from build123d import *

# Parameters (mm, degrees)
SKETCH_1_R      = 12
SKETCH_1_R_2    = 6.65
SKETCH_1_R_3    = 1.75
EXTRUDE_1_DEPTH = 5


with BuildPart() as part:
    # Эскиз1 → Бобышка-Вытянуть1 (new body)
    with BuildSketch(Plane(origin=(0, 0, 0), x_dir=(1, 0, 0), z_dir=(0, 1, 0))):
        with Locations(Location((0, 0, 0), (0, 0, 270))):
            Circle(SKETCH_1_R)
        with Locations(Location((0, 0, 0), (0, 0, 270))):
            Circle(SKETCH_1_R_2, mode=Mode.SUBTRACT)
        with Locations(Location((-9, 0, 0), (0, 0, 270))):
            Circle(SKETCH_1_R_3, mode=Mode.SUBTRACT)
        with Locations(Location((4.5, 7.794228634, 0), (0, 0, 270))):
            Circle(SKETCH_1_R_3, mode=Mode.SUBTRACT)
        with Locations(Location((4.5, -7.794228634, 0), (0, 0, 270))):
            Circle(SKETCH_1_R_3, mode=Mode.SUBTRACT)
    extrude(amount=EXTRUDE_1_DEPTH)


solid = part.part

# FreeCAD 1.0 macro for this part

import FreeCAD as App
import Part
import Sketcher

doc = App.newDocument("Part")
params = doc.addObject("Spreadsheet::Sheet", "Params")
for row, (alias, value) in enumerate([
    ("sketch1_diameter", "24 mm"),
    ("sketch1_diameter2", "3.5 mm"),
    ("sketch1_diameter3", "13.3 mm"),
    ("pad1_length", "5 mm"),
], start=1):
    params.set(f"A{row}", alias)
    params.set(f"B{row}", "=" + value)
    params.setAlias(f"B{row}", alias)

body = doc.addObject("PartDesign::Body", "Body")

# Sketch on XZ plane
sketch1 = body.newObject("Sketcher::SketchObject", "Sketch")
sketch1.AttachmentSupport = (doc.getObject("XZ_Plane"), [""])
sketch1.MapMode = "FlatFace"
sketch1.addGeometry(Part.Circle(App.Vector(0, 0, 0), App.Vector(0, 0, 1), 12), False)
sketch1.addGeometry(Part.Circle(App.Vector(-9, 0, 0), App.Vector(0, 0, 1), 1.8), False)
sketch1.addGeometry(Part.Circle(App.Vector(4.5, -7.8, 0), App.Vector(0, 0, 1), 1.8), False)
sketch1.addGeometry(Part.Circle(App.Vector(0, 0, 0), App.Vector(0, 0, 1), 6.7), False)
sketch1.addGeometry(Part.Circle(App.Vector(4.5, 7.8, 0), App.Vector(0, 0, 1), 1.8), False)
sketch1.addConstraint(Sketcher.Constraint("Coincident", 0, 3, -1, 1))
sketch1.addConstraint(Sketcher.Constraint("Coincident", 3, 3, -1, 1))
sketch1.addConstraint(Sketcher.Constraint("Equal", 1, 2))
sketch1.addConstraint(Sketcher.Constraint("Equal", 2, 4))
sketch1.addConstraint(Sketcher.Constraint("Symmetric", 2, 3, 4, 3, -1))
sketch1.addConstraint(Sketcher.Constraint("PointOnObject", 1, 3, -1))
sketch1.addConstraint(Sketcher.Constraint("Diameter", 0, 24.0))
sketch1.addConstraint(Sketcher.Constraint("Diameter", 1, 3.5))
sketch1.addConstraint(Sketcher.Constraint("Diameter", 3, 13.3))
sketch1.addConstraint(Sketcher.Constraint("DistanceX", 1, 3, -1, 1, 9.0))
sketch1.addConstraint(Sketcher.Constraint("DistanceX", -1, 1, 2, 3, 4.5))
sketch1.addConstraint(Sketcher.Constraint("DistanceY", 2, 3, -1, 1, 7.794229))
sketch1.setExpression("Constraints[6]", "Params.sketch1_diameter")
sketch1.setExpression("Constraints[7]", "Params.sketch1_diameter2")
sketch1.setExpression("Constraints[8]", "Params.sketch1_diameter3")
pad1 = body.newObject("PartDesign::Pad", "Pad")
pad1.Profile = sketch1
pad1.setExpression("Length", "Params.pad1_length")
pad1.Reversed = True

doc.recompute()
